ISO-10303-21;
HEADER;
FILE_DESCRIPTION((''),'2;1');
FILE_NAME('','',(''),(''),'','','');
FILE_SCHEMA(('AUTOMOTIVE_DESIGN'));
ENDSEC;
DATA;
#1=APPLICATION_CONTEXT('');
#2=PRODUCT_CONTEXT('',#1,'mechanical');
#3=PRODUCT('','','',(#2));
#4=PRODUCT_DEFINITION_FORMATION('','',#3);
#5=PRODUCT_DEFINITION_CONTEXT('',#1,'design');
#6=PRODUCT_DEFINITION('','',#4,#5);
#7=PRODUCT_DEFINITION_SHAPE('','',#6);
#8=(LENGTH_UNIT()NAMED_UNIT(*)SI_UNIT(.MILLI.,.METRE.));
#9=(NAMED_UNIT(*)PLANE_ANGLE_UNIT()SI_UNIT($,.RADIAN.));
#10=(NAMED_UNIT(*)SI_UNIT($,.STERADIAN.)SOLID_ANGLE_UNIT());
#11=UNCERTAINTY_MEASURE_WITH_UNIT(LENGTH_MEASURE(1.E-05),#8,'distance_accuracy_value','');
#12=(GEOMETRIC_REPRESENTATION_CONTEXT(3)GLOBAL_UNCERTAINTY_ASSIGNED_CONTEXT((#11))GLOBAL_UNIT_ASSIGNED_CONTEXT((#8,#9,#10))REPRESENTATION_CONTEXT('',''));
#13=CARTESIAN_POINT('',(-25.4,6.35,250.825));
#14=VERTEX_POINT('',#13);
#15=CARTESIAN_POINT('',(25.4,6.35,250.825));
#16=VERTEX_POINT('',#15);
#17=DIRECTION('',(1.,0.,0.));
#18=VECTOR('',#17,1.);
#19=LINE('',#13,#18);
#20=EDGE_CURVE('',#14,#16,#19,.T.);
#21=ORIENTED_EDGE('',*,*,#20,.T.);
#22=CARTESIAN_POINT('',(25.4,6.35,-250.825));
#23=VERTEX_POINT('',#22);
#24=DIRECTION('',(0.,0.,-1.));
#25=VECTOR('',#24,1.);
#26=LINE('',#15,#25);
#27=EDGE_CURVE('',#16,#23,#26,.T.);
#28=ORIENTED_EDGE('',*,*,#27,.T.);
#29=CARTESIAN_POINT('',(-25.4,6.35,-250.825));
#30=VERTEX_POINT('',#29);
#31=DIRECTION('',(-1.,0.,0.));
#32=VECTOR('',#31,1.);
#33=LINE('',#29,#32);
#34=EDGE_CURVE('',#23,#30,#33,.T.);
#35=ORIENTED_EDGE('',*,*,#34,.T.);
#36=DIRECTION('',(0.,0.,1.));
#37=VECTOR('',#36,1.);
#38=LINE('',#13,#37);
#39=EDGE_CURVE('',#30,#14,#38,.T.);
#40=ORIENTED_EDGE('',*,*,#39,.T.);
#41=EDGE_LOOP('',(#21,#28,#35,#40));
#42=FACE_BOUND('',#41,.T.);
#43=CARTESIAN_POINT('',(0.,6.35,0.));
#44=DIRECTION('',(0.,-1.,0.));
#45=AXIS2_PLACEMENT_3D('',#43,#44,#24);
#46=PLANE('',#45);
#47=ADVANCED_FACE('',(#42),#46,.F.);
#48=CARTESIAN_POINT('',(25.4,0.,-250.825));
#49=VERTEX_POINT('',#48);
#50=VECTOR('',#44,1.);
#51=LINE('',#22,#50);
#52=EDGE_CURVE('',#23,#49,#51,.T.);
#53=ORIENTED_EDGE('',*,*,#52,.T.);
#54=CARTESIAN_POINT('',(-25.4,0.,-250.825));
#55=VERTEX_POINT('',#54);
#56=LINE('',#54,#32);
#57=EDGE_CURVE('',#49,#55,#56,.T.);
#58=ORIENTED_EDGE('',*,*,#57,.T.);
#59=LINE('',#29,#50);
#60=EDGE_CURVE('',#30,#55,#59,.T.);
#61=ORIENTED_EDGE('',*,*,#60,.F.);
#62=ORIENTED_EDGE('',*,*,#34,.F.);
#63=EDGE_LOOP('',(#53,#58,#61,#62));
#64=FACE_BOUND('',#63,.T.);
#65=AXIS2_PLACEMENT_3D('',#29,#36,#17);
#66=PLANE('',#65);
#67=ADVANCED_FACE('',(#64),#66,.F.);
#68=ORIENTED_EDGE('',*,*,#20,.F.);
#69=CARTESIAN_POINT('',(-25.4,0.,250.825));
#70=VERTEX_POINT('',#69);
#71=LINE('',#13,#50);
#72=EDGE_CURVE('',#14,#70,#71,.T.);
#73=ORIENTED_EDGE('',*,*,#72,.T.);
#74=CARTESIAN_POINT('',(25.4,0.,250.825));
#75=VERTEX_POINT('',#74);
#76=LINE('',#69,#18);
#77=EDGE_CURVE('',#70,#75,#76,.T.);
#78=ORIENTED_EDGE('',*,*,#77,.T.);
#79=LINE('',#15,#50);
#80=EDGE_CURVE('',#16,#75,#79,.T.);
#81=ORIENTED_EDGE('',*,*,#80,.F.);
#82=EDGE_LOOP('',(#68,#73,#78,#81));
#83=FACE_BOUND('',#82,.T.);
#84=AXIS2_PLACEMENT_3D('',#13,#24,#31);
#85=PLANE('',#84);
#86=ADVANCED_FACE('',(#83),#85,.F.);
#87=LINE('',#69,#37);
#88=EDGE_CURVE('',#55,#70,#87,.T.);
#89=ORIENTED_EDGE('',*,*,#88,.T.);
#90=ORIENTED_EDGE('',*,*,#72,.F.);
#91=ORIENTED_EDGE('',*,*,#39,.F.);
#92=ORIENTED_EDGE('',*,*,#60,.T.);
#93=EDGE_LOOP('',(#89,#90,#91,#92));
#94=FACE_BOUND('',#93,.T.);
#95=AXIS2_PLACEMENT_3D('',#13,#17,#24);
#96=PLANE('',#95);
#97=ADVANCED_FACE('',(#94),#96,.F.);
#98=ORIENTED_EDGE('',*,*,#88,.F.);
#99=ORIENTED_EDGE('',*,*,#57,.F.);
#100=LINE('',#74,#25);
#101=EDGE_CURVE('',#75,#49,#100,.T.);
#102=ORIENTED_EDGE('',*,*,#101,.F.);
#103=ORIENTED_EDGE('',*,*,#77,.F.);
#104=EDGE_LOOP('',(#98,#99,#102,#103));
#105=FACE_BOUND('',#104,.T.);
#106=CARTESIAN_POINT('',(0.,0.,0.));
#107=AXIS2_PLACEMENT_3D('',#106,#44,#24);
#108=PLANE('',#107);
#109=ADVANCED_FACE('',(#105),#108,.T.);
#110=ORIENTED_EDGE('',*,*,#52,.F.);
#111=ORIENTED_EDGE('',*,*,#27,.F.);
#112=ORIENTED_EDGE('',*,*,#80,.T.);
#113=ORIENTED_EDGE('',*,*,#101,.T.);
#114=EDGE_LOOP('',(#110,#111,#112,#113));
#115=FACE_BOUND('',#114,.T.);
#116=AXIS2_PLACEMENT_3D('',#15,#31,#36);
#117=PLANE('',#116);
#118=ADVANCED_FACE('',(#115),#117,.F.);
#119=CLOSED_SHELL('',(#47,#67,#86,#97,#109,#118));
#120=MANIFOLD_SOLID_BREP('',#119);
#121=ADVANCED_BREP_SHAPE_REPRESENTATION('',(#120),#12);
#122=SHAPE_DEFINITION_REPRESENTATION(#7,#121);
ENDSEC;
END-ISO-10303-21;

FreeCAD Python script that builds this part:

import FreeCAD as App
import Part
import Sketcher

V = App.Vector
Q = App.Units.Quantity


def add_polygon(sketch, points):
    """Adds a closed chain of lines whose ends are joined by coincident constraints."""
    first, n = sketch.GeometryCount, len(points)
    for a, b in zip(points, points[1:] + points[:1]):
        sketch.addGeometry(Part.LineSegment(App.Vector(*a, 0), App.Vector(*b, 0)), False)
    for i in range(n):
        sketch.addConstraint(Sketcher.Constraint("Coincident", first + i, 2, first + (i + 1) % n, 1))

doc = App.newDocument("Part")
params = doc.addObject("Spreadsheet::Sheet", "Params")
for row, (alias, value) in enumerate([
    ("sketch1_width", "2 in"),
    ("sketch1_height", "19.75 in"),
    ("pad1_length", "0.25 in"),
], start=1):
    params.set(f"A{row}", alias)
    params.set(f"B{row}", "=" + value)
    params.setAlias(f"B{row}", alias)

body = doc.addObject("PartDesign::Body", "Body")

sketch1 = body.newObject("Sketcher::SketchObject", "Sketch")
sketch1.AttachmentSupport = (doc.getObject("XZ_Plane"), [""])
sketch1.MapMode = "FlatFace"
add_polygon(sketch1, [(-25, -251), (-25, 251), (25, 251), (25, -251)])
sketch1.addConstraint([
    Sketcher.Constraint("Vertical", 0),
    Sketcher.Constraint("Horizontal", 1),
    Sketcher.Constraint("Vertical", 2),
    Sketcher.Constraint("Horizontal", 3),
    Sketcher.Constraint("Symmetric", 0, 2, 2, 2, -1, 1),
    Sketcher.Constraint("DistanceX", 1, 1, 1, 2, Q("2 in")),
    Sketcher.Constraint("DistanceY", 0, 1, 0, 2, Q("19.75 in")),
])
sketch1.setExpression("Constraints[9]", "Params.sketch1_width")
sketch1.setExpression("Constraints[10]", "Params.sketch1_height")
pad1 = body.newObject("PartDesign::Pad", "Pad")
pad1.Profile = sketch1
pad1.setExpression("Length", "Params.pad1_length")
pad1.Reversed = True

doc.recompute()
